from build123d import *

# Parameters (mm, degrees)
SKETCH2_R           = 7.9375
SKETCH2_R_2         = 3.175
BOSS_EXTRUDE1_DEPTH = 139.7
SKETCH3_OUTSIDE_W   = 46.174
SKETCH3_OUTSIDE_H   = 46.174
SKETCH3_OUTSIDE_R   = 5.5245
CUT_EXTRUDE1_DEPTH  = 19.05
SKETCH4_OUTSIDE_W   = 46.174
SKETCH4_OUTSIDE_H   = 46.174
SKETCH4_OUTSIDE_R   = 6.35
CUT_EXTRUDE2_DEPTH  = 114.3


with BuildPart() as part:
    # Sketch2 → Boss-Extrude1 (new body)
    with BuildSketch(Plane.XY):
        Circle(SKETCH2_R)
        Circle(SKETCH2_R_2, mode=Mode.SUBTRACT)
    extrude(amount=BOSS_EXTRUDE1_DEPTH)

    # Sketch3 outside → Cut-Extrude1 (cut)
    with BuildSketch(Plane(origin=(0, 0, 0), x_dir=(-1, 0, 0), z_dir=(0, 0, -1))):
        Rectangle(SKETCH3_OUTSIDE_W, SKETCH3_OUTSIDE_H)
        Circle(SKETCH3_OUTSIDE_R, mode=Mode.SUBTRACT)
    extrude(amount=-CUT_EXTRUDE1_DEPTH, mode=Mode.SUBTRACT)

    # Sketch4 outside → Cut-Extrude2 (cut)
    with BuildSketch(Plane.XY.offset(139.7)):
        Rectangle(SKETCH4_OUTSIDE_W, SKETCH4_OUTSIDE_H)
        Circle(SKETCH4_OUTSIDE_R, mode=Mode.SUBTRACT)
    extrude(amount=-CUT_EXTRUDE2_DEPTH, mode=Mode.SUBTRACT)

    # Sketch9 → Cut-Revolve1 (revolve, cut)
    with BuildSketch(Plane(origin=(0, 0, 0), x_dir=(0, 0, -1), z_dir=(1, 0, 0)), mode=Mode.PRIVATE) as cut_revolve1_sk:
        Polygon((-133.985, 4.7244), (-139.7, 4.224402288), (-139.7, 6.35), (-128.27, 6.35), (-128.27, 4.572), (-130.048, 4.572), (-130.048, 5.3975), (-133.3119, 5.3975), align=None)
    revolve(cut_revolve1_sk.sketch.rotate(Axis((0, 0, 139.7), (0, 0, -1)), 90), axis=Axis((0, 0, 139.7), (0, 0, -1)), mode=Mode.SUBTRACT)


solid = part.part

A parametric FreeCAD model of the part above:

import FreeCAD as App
import Part
import Sketcher

V = App.Vector
Q = App.Units.Quantity


def add_polygon(sketch, points):
    """Adds a closed chain of lines whose ends are joined by coincident constraints."""
    first, n = sketch.GeometryCount, len(points)
    for a, b in zip(points, points[1:] + points[:1]):
        sketch.addGeometry(Part.LineSegment(App.Vector(*a, 0), App.Vector(*b, 0)), False)
    for i in range(n):
        sketch.addConstraint(Sketcher.Constraint("Coincident", first + i, 2, first + (i + 1) % n, 1))

doc = App.newDocument("Part")
params = doc.addObject("Spreadsheet::Sheet", "Params")
for row, (alias, value) in enumerate([
    ("sketch1_diameter", "0.25 in"),
    ("sketch1_diameter2", "0.625 in"),
    ("pad1_length", "5.5 in"),
    ("sketch2_diameter", "0.435 in"),
    ("pocket1_length", "0.75 in"),
    ("sketch3_diameter", "0.5 in"),
    ("pocket2_length", "4.5 in"),
    ("sketch4_width", "0.07 in"),
    ("sketch4_height", "0.45 in"),
    ("groove_angle", "360 deg"),
], start=1):
    params.set(f"A{row}", alias)
    params.set(f"B{row}", "=" + value)
    params.setAlias(f"B{row}", alias)

body = doc.addObject("PartDesign::Body", "Body")

# Sketch on XY plane
sketch1 = body.newObject("Sketcher::SketchObject", "Sketch")
sketch1.AttachmentSupport = (doc.getObject("XY_Plane"), [""])
sketch1.MapMode = "FlatFace"
sketch1.addGeometry(Part.Circle(V(0, 0, 0), V(0, 0, 1), 7.9375), False)
sketch1.addGeometry(Part.Circle(V(0, 0, 0), V(0, 0, 1), 3.175), False)
sketch1.addConstraint(Sketcher.Constraint("Coincident", 0, 3, -1, 1))
sketch1.addConstraint(Sketcher.Constraint("Coincident", 1, 3, -1, 1))
sketch1.addConstraint(Sketcher.Constraint("Diameter", 1, Q("0.25 in")))
sketch1.addConstraint(Sketcher.Constraint("Diameter", 0, Q("0.625 in")))
sketch1.setExpression("Constraints[2]", "Params.sketch1_diameter")
sketch1.setExpression("Constraints[3]", "Params.sketch1_diameter2")
pad1 = body.newObject("PartDesign::Pad", "Pad")
pad1.Profile = sketch1
pad1.setExpression("Length", "Params.pad1_length")

# Sketch on XY plane
sketch2 = body.newObject("Sketcher::SketchObject", "Sketch001")
sketch2.AttachmentSupport = (doc.getObject("XY_Plane"), [""])
sketch2.MapMode = "FlatFace"
add_polygon(sketch2, [(23.087, 23.087), (23.087, -23.087), (-23.087, -23.087), (-23.087, 23.087)])  # lines 0-3
sketch2.addGeometry(Part.Circle(V(0, 0, 0), V(0, 0, 1), 5.5245), False)  # 4
sketch2.addConstraint(Sketcher.Constraint("Vertical", 0))
sketch2.addConstraint(Sketcher.Constraint("Horizontal", 1))
sketch2.addConstraint(Sketcher.Constraint("Vertical", 2))
sketch2.addConstraint(Sketcher.Constraint("Horizontal", 3))
sketch2.addConstraint(Sketcher.Constraint("Coincident", 4, 3, -1, 1))
sketch2.addConstraint(Sketcher.Constraint("Symmetric", 0, 2, 2, 2, -1, 1))
sketch2.addConstraint(Sketcher.Constraint("Equal", 3, 0))
sketch2.addConstraint(Sketcher.Constraint("Diameter", 4, Q("0.435 in")))
sketch2.addConstraint(Sketcher.Constraint("DistanceX", 1, 2, 1, 1, Q("46.174 mm")))
sketch2.setExpression("Constraints[11]", "Params.sketch2_diameter")
pocket1 = body.newObject("PartDesign::Pocket", "Pocket")
pocket1.Profile = sketch2
pocket1.setExpression("Length", "Params.pocket1_length")
pocket1.Reversed = True

# Sketch on XY plane
sketch3 = body.newObject("Sketcher::SketchObject", "Sketch002")
sketch3.AttachmentSupport = (doc.getObject("XY_Plane"), [""])
sketch3.MapMode = "FlatFace"
sketch3.AttachmentOffset = App.Placement(V(0, 0, 5.5 * 25.4), App.Rotation())
add_polygon(sketch3, [(-23.087, 23.087), (-23.087, -23.087), (23.087, -23.087), (23.087, 23.087)])  # lines 0-3
sketch3.addGeometry(Part.Circle(V(0, 0, 0), V(0, 0, 1), 6.35), False)  # 4
sketch3.addConstraint(Sketcher.Constraint("Vertical", 0))
sketch3.addConstraint(Sketcher.Constraint("Horizontal", 1))
sketch3.addConstraint(Sketcher.Constraint("Vertical", 2))
sketch3.addConstraint(Sketcher.Constraint("Horizontal", 3))
sketch3.addConstraint(Sketcher.Constraint("Coincident", 4, 3, -1, 1))
sketch3.addConstraint(Sketcher.Constraint("Symmetric", 0, 2, 2, 2, -1, 1))
sketch3.addConstraint(Sketcher.Constraint("Equal", 3, 0))
sketch3.addConstraint(Sketcher.Constraint("Diameter", 4, Q("0.5 in")))
sketch3.addConstraint(Sketcher.Constraint("DistanceX", 1, 1, 1, 2, Q("46.174 mm")))
sketch3.setExpression("Constraints[11]", "Params.sketch3_diameter")
pocket2 = body.newObject("PartDesign::Pocket", "Pocket001")
pocket2.Profile = sketch3
pocket2.setExpression("Length", "Params.pocket2_length")

# Sketch on YZ plane
sketch4 = body.newObject("Sketcher::SketchObject", "Sketch003")
sketch4.AttachmentSupport = (doc.getObject("YZ_Plane"), [""])
sketch4.MapMode = "FlatFace"
add_polygon(sketch4, [(4.224402, 139.7), (4.7244, 133.985), (5.3975, 133.3119), (5.3975, 130.048), (4.572, 130.048), (4.572, 128.27), (6.35, 128.27), (6.35, 139.7)])  # lines 0-7
sketch4.addConstraint(Sketcher.Constraint("Vertical", 2))
sketch4.addConstraint(Sketcher.Constraint("Horizontal", 3))
sketch4.addConstraint(Sketcher.Constraint("Vertical", 4))
sketch4.addConstraint(Sketcher.Constraint("Horizontal", 5))
sketch4.addConstraint(Sketcher.Constraint("Vertical", 6))
sketch4.addConstraint(Sketcher.Constraint("Horizontal", 7))
sketch4.addConstraint(Sketcher.Constraint("Equal", 5, 4))
sketch4.addConstraint(Sketcher.Constraint("Angle", 0, Q("-85 deg")))
sketch4.addConstraint(Sketcher.Constraint("Angle", 1, Q("-45 deg")))
sketch4.addConstraint(Sketcher.Constraint("DistanceX", 5, 1, 5, 2, Q("0.07 in")))
sketch4.addConstraint(Sketcher.Constraint("DistanceY", 6, 1, 6, 2, Q("0.45 in")))
sketch4.addConstraint(Sketcher.Constraint("DistanceY", -1, 1, 6, 2, Q("5.5 in")))
sketch4.addConstraint(Sketcher.Constraint("DistanceX", -1, 1, 3, 2, Q("0.18 in")))
sketch4.addConstraint(Sketcher.Constraint("DistanceX", 3, 2, 3, 1, Q("0.0325 in")))
sketch4.addConstraint(Sketcher.Constraint("DistanceY", 2, 2, 2, 1, Q("0.1285 in")))
sketch4.addConstraint(Sketcher.Constraint("DistanceX", -1, 1, 0, 2, Q("0.186 in")))
sketch4.setExpression("Constraints[17]", "Params.sketch4_width")
sketch4.setExpression("Constraints[18]", "Params.sketch4_height")
groove = body.newObject("PartDesign::Groove", "Groove")
groove.Profile = sketch4
groove.ReferenceAxis = (sketch4, ["V_Axis"])
groove.setExpression("Angle", "Params.groove_angle")

doc.recompute()
